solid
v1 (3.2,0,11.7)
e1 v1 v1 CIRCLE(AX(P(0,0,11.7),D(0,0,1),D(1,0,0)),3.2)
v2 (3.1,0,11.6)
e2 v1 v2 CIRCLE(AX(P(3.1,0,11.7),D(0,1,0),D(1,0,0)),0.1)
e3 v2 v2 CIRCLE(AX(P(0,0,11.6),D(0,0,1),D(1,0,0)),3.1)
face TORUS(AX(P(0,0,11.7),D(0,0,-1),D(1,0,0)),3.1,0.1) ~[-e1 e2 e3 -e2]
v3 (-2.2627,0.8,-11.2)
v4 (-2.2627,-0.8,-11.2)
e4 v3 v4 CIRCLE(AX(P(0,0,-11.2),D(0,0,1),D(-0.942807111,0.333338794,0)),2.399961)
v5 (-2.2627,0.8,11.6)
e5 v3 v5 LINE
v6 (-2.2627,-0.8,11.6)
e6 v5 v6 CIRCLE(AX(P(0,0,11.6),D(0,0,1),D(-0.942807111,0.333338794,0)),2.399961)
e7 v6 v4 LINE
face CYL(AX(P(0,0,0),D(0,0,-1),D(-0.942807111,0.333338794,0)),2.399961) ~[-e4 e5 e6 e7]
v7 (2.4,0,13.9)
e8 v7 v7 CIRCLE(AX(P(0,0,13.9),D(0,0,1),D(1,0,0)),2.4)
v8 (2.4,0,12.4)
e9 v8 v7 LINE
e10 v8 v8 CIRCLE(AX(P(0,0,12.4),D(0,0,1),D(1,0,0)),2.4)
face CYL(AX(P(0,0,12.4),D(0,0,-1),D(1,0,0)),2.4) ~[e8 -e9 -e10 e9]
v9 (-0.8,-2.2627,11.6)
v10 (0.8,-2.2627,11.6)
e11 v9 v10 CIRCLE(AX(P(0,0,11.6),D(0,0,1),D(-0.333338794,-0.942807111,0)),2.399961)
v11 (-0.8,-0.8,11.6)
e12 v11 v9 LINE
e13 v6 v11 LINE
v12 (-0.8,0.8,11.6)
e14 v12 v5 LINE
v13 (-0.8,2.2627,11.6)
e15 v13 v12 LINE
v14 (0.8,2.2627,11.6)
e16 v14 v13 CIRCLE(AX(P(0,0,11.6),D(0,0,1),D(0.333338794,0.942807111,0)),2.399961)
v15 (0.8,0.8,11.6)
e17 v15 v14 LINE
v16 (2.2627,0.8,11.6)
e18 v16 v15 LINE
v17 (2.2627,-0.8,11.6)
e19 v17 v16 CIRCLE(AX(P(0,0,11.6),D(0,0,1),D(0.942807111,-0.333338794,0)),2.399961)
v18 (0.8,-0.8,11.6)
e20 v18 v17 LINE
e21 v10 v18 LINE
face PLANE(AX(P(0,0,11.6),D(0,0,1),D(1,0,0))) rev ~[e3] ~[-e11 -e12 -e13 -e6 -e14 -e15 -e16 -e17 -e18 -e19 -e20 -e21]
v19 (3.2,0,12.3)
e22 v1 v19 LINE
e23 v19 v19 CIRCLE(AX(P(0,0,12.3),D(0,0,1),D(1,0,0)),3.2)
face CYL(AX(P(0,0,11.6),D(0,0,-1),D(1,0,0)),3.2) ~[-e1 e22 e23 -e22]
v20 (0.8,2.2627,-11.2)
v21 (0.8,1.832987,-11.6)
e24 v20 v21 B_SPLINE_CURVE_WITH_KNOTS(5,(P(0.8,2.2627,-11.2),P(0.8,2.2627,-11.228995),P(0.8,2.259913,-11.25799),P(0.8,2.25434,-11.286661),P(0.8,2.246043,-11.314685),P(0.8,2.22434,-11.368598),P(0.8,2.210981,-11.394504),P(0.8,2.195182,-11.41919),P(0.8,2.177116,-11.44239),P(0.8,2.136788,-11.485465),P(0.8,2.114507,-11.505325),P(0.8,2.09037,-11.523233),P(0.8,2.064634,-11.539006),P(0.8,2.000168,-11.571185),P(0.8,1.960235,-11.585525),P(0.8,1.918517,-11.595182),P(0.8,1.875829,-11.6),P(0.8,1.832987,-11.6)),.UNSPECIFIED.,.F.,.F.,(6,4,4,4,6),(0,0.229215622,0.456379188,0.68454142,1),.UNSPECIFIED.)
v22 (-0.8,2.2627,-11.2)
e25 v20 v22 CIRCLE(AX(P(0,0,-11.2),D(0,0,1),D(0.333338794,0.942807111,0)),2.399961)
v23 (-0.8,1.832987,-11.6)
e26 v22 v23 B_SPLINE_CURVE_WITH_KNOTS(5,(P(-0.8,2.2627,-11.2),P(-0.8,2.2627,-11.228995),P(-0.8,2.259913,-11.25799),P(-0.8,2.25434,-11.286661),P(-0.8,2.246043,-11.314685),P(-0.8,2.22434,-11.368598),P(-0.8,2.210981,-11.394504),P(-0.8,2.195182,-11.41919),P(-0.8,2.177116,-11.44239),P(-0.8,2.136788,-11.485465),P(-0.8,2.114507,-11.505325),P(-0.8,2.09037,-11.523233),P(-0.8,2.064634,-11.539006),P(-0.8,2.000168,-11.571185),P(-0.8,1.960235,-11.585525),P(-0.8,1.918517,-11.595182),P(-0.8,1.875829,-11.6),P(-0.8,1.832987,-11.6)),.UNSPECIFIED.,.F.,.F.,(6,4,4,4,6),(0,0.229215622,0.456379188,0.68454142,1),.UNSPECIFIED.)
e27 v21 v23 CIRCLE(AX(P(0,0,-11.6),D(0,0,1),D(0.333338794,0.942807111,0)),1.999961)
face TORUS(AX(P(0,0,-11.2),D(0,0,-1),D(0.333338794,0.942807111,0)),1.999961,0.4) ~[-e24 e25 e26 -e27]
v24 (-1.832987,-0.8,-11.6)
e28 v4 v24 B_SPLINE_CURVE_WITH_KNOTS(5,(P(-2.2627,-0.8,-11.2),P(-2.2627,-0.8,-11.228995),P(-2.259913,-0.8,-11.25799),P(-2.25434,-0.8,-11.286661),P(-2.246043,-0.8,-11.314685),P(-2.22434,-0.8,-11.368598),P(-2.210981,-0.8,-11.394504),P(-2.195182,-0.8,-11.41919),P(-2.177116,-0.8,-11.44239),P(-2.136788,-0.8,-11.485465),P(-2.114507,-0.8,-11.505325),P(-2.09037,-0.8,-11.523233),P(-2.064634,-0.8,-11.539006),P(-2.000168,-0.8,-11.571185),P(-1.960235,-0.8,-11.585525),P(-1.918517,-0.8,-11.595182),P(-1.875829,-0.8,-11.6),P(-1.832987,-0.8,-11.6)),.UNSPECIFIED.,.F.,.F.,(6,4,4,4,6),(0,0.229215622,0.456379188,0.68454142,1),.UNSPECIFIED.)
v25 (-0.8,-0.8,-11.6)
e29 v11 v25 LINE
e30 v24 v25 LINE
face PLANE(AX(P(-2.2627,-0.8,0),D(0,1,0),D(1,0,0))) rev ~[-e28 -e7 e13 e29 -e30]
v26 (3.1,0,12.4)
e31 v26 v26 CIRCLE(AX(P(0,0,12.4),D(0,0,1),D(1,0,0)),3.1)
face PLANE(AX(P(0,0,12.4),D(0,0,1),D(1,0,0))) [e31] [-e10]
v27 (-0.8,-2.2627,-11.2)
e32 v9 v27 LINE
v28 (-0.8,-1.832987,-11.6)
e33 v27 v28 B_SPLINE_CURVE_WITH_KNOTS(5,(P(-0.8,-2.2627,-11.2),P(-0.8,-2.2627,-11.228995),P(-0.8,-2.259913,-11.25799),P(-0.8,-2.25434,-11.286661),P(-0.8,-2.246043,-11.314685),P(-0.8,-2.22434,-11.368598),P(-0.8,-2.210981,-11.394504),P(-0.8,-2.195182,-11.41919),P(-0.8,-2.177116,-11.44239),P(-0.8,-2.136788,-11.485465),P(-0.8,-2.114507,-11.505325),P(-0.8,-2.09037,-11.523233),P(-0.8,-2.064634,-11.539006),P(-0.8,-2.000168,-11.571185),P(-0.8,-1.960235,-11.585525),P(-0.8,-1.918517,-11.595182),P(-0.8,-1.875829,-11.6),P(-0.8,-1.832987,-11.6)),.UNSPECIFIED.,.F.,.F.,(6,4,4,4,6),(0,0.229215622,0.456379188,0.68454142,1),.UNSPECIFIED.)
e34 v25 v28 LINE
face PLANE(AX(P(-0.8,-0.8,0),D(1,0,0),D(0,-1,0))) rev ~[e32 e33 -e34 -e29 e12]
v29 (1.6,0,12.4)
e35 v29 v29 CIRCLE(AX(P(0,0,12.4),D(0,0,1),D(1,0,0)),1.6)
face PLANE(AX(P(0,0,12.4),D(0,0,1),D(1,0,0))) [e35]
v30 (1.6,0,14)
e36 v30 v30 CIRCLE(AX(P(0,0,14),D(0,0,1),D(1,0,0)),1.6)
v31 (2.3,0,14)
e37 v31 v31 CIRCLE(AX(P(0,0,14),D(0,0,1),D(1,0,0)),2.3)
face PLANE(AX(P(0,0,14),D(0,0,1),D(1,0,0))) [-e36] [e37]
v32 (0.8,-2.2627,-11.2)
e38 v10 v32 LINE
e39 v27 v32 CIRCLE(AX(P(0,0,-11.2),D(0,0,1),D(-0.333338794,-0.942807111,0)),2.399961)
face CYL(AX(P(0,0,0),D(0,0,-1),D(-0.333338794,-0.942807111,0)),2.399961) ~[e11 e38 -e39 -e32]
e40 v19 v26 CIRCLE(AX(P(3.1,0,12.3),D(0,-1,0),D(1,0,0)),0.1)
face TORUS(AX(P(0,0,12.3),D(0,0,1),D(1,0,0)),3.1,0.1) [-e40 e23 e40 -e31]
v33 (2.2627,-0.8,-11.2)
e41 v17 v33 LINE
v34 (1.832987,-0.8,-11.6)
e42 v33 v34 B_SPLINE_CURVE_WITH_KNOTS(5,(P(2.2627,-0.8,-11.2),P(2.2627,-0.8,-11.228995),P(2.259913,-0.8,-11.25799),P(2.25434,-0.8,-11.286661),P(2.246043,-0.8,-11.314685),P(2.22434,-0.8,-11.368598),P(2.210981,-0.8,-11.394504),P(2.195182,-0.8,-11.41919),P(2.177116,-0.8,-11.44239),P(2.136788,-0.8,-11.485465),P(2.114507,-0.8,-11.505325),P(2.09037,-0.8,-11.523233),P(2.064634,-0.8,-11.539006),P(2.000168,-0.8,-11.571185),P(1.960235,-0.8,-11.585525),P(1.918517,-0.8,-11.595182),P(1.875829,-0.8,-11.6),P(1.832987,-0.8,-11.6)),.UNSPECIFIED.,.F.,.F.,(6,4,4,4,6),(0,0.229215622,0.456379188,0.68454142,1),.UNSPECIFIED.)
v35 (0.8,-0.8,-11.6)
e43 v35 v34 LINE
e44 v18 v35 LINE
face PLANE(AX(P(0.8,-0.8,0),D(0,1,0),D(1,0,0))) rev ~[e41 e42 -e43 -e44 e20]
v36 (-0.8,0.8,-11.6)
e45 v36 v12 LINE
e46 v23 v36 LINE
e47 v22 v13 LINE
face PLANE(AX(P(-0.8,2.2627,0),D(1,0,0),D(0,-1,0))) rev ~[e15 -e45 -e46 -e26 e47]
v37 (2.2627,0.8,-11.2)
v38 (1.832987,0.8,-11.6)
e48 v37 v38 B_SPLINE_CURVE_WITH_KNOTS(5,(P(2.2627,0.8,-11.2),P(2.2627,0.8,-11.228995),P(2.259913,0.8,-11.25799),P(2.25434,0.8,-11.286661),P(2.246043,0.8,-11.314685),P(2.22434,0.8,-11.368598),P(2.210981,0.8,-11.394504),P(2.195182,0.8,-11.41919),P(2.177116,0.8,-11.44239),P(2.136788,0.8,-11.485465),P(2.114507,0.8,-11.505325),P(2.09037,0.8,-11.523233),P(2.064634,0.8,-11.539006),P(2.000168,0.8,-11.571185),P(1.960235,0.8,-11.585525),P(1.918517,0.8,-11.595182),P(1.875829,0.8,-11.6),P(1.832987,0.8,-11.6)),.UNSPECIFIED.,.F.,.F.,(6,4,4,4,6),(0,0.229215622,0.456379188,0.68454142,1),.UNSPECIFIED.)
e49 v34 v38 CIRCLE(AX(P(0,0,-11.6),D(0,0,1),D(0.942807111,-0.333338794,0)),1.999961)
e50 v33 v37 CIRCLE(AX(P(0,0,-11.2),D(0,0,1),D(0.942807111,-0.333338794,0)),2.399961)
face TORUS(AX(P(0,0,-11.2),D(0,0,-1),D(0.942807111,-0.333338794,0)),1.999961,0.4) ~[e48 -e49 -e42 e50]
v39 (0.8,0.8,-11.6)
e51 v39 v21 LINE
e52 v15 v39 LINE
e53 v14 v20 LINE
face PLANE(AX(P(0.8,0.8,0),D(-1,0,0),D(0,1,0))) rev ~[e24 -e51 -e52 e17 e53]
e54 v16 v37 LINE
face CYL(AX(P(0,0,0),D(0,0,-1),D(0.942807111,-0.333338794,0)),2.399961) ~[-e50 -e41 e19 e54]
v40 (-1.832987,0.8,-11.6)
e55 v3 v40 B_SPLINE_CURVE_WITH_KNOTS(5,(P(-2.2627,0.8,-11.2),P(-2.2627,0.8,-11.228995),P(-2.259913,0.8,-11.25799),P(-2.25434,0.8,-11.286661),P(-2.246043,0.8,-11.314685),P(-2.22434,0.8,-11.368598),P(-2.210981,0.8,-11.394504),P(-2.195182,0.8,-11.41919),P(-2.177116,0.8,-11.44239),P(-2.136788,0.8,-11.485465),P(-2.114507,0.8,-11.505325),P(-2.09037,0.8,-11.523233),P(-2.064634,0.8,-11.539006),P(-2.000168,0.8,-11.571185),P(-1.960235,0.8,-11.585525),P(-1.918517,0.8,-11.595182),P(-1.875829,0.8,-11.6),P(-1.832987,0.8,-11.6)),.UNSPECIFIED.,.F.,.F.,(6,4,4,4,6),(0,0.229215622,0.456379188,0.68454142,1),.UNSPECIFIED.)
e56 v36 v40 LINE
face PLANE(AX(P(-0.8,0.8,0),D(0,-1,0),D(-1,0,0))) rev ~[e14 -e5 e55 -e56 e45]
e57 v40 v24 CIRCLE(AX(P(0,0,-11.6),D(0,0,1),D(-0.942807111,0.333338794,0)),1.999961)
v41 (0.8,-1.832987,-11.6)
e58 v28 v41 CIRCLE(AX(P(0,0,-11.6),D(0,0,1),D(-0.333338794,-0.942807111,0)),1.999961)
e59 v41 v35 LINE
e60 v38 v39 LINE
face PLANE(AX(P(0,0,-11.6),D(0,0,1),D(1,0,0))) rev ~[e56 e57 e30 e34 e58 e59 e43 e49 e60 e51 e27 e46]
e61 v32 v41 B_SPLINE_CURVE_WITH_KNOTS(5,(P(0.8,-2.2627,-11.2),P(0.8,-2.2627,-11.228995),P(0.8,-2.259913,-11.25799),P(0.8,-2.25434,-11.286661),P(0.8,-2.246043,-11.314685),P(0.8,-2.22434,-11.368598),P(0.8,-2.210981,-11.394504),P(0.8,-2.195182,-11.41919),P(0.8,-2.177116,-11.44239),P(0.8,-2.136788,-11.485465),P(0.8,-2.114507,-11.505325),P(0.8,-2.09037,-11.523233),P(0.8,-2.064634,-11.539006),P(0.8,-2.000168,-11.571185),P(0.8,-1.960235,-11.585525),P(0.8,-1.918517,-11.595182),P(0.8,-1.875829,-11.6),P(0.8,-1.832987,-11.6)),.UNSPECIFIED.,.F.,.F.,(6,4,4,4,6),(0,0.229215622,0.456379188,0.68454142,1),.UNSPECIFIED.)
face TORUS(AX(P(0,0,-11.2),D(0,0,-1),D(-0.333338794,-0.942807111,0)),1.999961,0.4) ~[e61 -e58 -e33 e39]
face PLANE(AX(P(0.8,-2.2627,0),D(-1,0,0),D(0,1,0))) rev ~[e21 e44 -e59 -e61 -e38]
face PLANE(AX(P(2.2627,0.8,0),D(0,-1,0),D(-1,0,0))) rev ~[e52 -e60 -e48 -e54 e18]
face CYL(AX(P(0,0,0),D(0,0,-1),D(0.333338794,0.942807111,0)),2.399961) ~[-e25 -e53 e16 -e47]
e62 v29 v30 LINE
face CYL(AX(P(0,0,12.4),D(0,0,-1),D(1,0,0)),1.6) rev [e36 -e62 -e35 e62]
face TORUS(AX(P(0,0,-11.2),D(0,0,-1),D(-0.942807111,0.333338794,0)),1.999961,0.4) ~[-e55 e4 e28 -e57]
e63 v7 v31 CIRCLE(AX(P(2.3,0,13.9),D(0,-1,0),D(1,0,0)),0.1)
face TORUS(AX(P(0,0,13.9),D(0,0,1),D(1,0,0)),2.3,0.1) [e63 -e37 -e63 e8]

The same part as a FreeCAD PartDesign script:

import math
import FreeCAD as App
import Part
import Sketcher

V = App.Vector


def edges_at(feature, points):
    """Names of the edges that pass closest to the given points."""
    edges = feature.Shape.Edges
    near = lambda p: min(range(len(edges)), key=lambda i: edges[i].distToShape(Part.Vertex(*p))[0])
    return sorted({f"Edge{near(p) + 1}" for p in points})

doc = App.newDocument("Part")
body = doc.addObject("PartDesign::Body", "Body")

sketch1 = doc.addObject("Sketcher::SketchObject", "Sketch")
body.addObject(sketch1)
sketch1.AttachmentSupport = (doc.XY_Plane, [""])
sketch1.MapMode = "FlatFace"
sketch1.addGeometry(Part.ArcOfCircle(Part.Circle(V(0, 0, 0), V(0, 0, 1), 2.4), math.radians(71), math.radians(109)), False)
sketch1.addGeometry(Part.LineSegment(V(-0.8, 2.3, 0), V(-0.8, 0.8, 0)), False)
sketch1.addGeometry(Part.LineSegment(V(-0.8, 0.8, 0), V(-2.3, 0.8, 0)), False)
sketch1.addGeometry(Part.ArcOfCircle(Part.Circle(V(0, 0, 0), V(0, 0, 1), 2.4), math.radians(161), math.radians(199)), False)
sketch1.addGeometry(Part.LineSegment(V(-2.3, -0.8, 0), V(-0.8, -0.8, 0)), False)
sketch1.addGeometry(Part.LineSegment(V(-0.8, -0.8, 0), V(-0.8, -2.3, 0)), False)
sketch1.addGeometry(Part.ArcOfCircle(Part.Circle(V(0, 0, 0), V(0, 0, 1), 2.4), math.radians(-109), math.radians(-71)), False)
sketch1.addGeometry(Part.LineSegment(V(0.8, -2.3, 0), V(0.8, -0.8, 0)), False)
sketch1.addGeometry(Part.LineSegment(V(0.8, -0.8, 0), V(2.3, -0.8, 0)), False)
sketch1.addGeometry(Part.ArcOfCircle(Part.Circle(V(0, 0, 0), V(0, 0, 1), 2.4), math.radians(-19), math.radians(19)), False)
sketch1.addGeometry(Part.LineSegment(V(2.3, 0.8, 0), V(0.8, 0.8, 0)), False)
sketch1.addGeometry(Part.LineSegment(V(0.8, 0.8, 0), V(0.8, 2.3, 0)), False)
sketch1.addConstraint(Sketcher.Constraint("Coincident", 0, 2, 1, 1))
sketch1.addConstraint(Sketcher.Constraint("Coincident", 1, 2, 2, 1))
sketch1.addConstraint(Sketcher.Constraint("Coincident", 2, 2, 3, 1))
sketch1.addConstraint(Sketcher.Constraint("Coincident", 3, 2, 4, 1))
sketch1.addConstraint(Sketcher.Constraint("Coincident", 4, 2, 5, 1))
sketch1.addConstraint(Sketcher.Constraint("Coincident", 5, 2, 6, 1))
sketch1.addConstraint(Sketcher.Constraint("Coincident", 6, 2, 7, 1))
sketch1.addConstraint(Sketcher.Constraint("Coincident", 7, 2, 8, 1))
sketch1.addConstraint(Sketcher.Constraint("Coincident", 8, 2, 9, 1))
sketch1.addConstraint(Sketcher.Constraint("Coincident", 9, 2, 10, 1))
sketch1.addConstraint(Sketcher.Constraint("Coincident", 10, 2, 11, 1))
sketch1.addConstraint(Sketcher.Constraint("Coincident", 11, 2, 0, 1))
sketch1.addConstraint(Sketcher.Constraint("Vertical", 1))
sketch1.addConstraint(Sketcher.Constraint("Horizontal", 2))
sketch1.addConstraint(Sketcher.Constraint("Horizontal", 4))
sketch1.addConstraint(Sketcher.Constraint("Vertical", 5))
sketch1.addConstraint(Sketcher.Constraint("Vertical", 7))
sketch1.addConstraint(Sketcher.Constraint("Horizontal", 8))
sketch1.addConstraint(Sketcher.Constraint("Horizontal", 10))
sketch1.addConstraint(Sketcher.Constraint("Vertical", 11))
sketch1.addConstraint(Sketcher.Constraint("Coincident", 0, 3, -1, 1))
sketch1.addConstraint(Sketcher.Constraint("Coincident", 3, 3, -1, 1))
sketch1.addConstraint(Sketcher.Constraint("Coincident", 6, 3, -1, 1))
sketch1.addConstraint(Sketcher.Constraint("Coincident", 9, 3, -1, 1))
sketch1.addConstraint(Sketcher.Constraint("Equal", 0, 3))
sketch1.addConstraint(Sketcher.Constraint("Equal", 3, 6))
sketch1.addConstraint(Sketcher.Constraint("Equal", 6, 9))
sketch1.addConstraint(Sketcher.Constraint("Symmetric", 1, 2, 7, 2, -1, 1))
sketch1.addConstraint(Sketcher.Constraint("Symmetric", 4, 2, 10, 2, -1, 1))
sketch1.addConstraint(Sketcher.Constraint("Symmetric", 4, 2, 7, 2, -2))
sketch1.addConstraint(Sketcher.Constraint("Equal", 10, 1))
sketch1.addConstraint(Sketcher.Constraint("Radius", 0, 2.4))
sketch1.addConstraint(Sketcher.Constraint("DistanceY", 3, 2, 2, 2, 1.6))
pad1 = doc.addObject("PartDesign::Pad", "Pad")
body.addObject(pad1)
pad1.Profile = sketch1
pad1.Length = 23.2
pad1.Midplane = True

sketch2 = doc.addObject("Sketcher::SketchObject", "Sketch001")
body.addObject(sketch2)
sketch2.AttachmentSupport = (doc.XY_Plane, [""])
sketch2.MapMode = "FlatFace"
sketch2.AttachmentOffset = App.Placement(V(0, 0, 11.6), App.Rotation())
sketch2.addGeometry(Part.Circle(V(0, 0, 0), V(0, 0, 1), 3.2), False)
sketch2.addConstraint(Sketcher.Constraint("Coincident", 0, 3, -1, 1))
sketch2.addConstraint(Sketcher.Constraint("Diameter", 0, 6.4))
pad2 = doc.addObject("PartDesign::Pad", "Pad001")
body.addObject(pad2)
pad2.Profile = sketch2
pad2.Length = 0.8

sketch3 = doc.addObject("Sketcher::SketchObject", "Sketch002")
body.addObject(sketch3)
sketch3.AttachmentSupport = (doc.XY_Plane, [""])
sketch3.MapMode = "FlatFace"
sketch3.AttachmentOffset = App.Placement(V(0, 0, 12.4), App.Rotation())
sketch3.addGeometry(Part.Circle(V(0, 0, 0), V(0, 0, 1), 2.4), False)
sketch3.addGeometry(Part.Circle(V(0, 0, 0), V(0, 0, 1), 1.6), False)
sketch3.addConstraint(Sketcher.Constraint("Coincident", 0, 3, -1, 1))
sketch3.addConstraint(Sketcher.Constraint("Coincident", 1, 3, -1, 1))
sketch3.addConstraint(Sketcher.Constraint("Diameter", 0, 4.8))
sketch3.addConstraint(Sketcher.Constraint("Diameter", 1, 3.2))
pad3 = doc.addObject("PartDesign::Pad", "Pad002")
body.addObject(pad3)
pad3.Profile = sketch3
pad3.Length = 1.6
doc.recompute()

fillet = doc.addObject("PartDesign::Fillet", "Fillet")
body.addObject(fillet)
fillet.Base = (pad3, edges_at(pad3, [
    (2.4, 0, -11.6),
    (0, 2.4, -11.6),
    (-2.4, 0, -11.6),
    (0, -2.4, -11.6),
]))
fillet.Radius = 0.4
doc.recompute()

fillet2 = doc.addObject("PartDesign::Fillet", "Fillet001")
body.addObject(fillet2)
fillet2.Base = (fillet, edges_at(fillet, [(-2.4, 0, 14), (-3.2, 0, 12.4), (-3.2, 0, 11.6)]))
fillet2.Radius = 0.1

doc.recompute()
